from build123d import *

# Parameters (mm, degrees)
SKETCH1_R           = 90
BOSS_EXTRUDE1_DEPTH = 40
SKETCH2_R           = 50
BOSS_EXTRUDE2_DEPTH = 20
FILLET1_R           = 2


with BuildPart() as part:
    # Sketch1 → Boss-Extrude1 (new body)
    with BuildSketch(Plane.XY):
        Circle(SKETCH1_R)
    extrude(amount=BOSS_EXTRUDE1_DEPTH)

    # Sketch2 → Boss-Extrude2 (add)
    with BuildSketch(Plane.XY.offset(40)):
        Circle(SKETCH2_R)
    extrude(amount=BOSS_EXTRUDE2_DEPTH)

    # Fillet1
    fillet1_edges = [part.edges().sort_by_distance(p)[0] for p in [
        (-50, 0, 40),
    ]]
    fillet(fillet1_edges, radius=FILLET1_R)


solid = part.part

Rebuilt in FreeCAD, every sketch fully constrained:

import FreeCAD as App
import Part
import Sketcher


def edges_at(feature, points):
    """Names of the edges that pass closest to the given points."""
    edges = feature.Shape.Edges
    near = lambda p: min(range(len(edges)), key=lambda i: edges[i].distToShape(Part.Vertex(*p))[0])
    return sorted({f"Edge{near(p) + 1}" for p in points})

doc = App.newDocument("Part")
params = doc.addObject("Spreadsheet::Sheet", "Params")
for row, (alias, value) in enumerate([
    ("sketch1_diameter", "180 mm"),
    ("pad1_length", "40 mm"),
    ("sketch2_diameter", "100 mm"),
    ("pad2_length", "20 mm"),
    ("fillet_radius", "2 mm"),
], start=1):
    params.set(f"A{row}", alias)
    params.set(f"B{row}", "=" + value)
    params.setAlias(f"B{row}", alias)

body = doc.addObject("PartDesign::Body", "Body")

# Sketch on XY plane
sketch1 = doc.addObject("Sketcher::SketchObject", "Sketch")
body.addObject(sketch1)
sketch1.AttachmentSupport = (doc.XY_Plane, [""])
sketch1.MapMode = "FlatFace"
sketch1.addGeometry(Part.Circle(App.Vector(0, 0, 0), App.Vector(0, 0, 1), 90), False)
sketch1.addConstraint([
    Sketcher.Constraint("Coincident", 0, 3, -1, 1),
    Sketcher.Constraint("Diameter", 0, 180.0),
])
sketch1.setExpression("Constraints[1]", "Params.sketch1_diameter")
pad1 = doc.addObject("PartDesign::Pad", "Pad")
body.addObject(pad1)
pad1.Profile = sketch1
pad1.setExpression("Length", "Params.pad1_length")

# Sketch on XY plane
sketch2 = doc.addObject("Sketcher::SketchObject", "Sketch001")
body.addObject(sketch2)
sketch2.AttachmentSupport = (doc.XY_Plane, [""])
sketch2.MapMode = "FlatFace"
sketch2.AttachmentOffset = App.Placement(App.Vector(0, 0, 40), App.Rotation())
sketch2.addGeometry(Part.Circle(App.Vector(0, 0, 0), App.Vector(0, 0, 1), 50), False)
sketch2.addConstraint([
    Sketcher.Constraint("Coincident", 0, 3, -1, 1),
    Sketcher.Constraint("Diameter", 0, 100.0),
])
sketch2.setExpression("Constraints[1]", "Params.sketch2_diameter")
pad2 = doc.addObject("PartDesign::Pad", "Pad001")
body.addObject(pad2)
pad2.Profile = sketch2
pad2.setExpression("Length", "Params.pad2_length")
doc.recompute()

fillet = doc.addObject("PartDesign::Fillet", "Fillet")
body.addObject(fillet)
fillet.Base = (pad2, edges_at(pad2, [(-50, 0, 40)]))
fillet.setExpression("Radius", "Params.fillet_radius")

doc.recompute()
